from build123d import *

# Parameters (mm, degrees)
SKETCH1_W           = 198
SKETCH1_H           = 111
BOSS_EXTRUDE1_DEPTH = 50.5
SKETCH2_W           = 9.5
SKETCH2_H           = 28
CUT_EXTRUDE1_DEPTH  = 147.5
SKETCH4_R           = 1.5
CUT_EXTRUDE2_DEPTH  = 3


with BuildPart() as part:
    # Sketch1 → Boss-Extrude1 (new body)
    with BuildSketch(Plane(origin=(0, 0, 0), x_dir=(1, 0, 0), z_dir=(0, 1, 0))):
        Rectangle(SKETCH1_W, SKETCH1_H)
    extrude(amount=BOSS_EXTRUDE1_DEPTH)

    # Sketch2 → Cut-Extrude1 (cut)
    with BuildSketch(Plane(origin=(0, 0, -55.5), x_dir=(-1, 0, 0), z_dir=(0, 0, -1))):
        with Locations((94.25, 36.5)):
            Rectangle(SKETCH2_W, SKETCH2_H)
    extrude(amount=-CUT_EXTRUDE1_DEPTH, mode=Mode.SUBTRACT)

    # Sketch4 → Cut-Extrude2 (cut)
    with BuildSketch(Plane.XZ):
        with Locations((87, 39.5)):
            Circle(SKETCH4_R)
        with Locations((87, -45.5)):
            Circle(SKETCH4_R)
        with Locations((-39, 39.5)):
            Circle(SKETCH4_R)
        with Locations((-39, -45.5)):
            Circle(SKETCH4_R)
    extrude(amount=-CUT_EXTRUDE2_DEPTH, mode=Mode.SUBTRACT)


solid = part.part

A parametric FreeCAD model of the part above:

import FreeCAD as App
import Part
import Sketcher
from FreeCAD import Vector

doc = App.newDocument("Part")
params = doc.addObject("Spreadsheet::Sheet", "Params")
for row, (alias, value) in enumerate([
    ("sketch1_width", "198 mm"),
    ("sketch1_height", "111 mm"),
    ("pad1_length", "50.5 mm"),
    ("sketch2_height", "28 mm"),
    ("sketch2_width", "9.5 mm"),
    ("pocket1_length", "147.5 mm"),
    ("sketch3_diameter", "3 mm"),
    ("pocket2_length", "3 mm"),
], start=1):
    params.set(f"A{row}", alias)
    params.set(f"B{row}", "=" + value)
    params.setAlias(f"B{row}", alias)

body = doc.addObject("PartDesign::Body", "Body")

# Sketch on XZ plane
sketch1 = doc.addObject("Sketcher::SketchObject", "Sketch")
body.addObject(sketch1)
sketch1.AttachmentSupport = (doc.XZ_Plane, [""])
sketch1.MapMode = "FlatFace"
sketch1.addGeometry([
    Part.LineSegment(Vector(-99, -56, 0), Vector(-99, 56, 0)),
    Part.LineSegment(Vector(-99, 56, 0), Vector(99, 56, 0)),
    Part.LineSegment(Vector(99, 56, 0), Vector(99, -56, 0)),
    Part.LineSegment(Vector(99, -56, 0), Vector(-99, -56, 0)),
], False)
sketch1.addConstraint([
    Sketcher.Constraint("Coincident", 0, 2, 1, 1),
    Sketcher.Constraint("Coincident", 1, 2, 2, 1),
    Sketcher.Constraint("Coincident", 2, 2, 3, 1),
    Sketcher.Constraint("Coincident", 3, 2, 0, 1),
    Sketcher.Constraint("Vertical", 0),
    Sketcher.Constraint("Horizontal", 1),
    Sketcher.Constraint("Vertical", 2),
    Sketcher.Constraint("Horizontal", 3),
    Sketcher.Constraint("Symmetric", 0, 2, 2, 2, -1, 1),
    Sketcher.Constraint("DistanceX", 1, 1, 1, 2, 198.0),
    Sketcher.Constraint("DistanceY", 0, 1, 0, 2, 111.0),
])
sketch1.setExpression("Constraints[9]", "Params.sketch1_width")
sketch1.setExpression("Constraints[10]", "Params.sketch1_height")
pad1 = doc.addObject("PartDesign::Pad", "Pad")
body.addObject(pad1)
pad1.Profile = sketch1
pad1.setExpression("Length", "Params.pad1_length")
pad1.Reversed = True

# Sketch on XY plane
sketch2 = doc.addObject("Sketcher::SketchObject", "Sketch001")
body.addObject(sketch2)
sketch2.AttachmentSupport = (doc.XY_Plane, [""])
sketch2.MapMode = "FlatFace"
sketch2.AttachmentOffset = App.Placement(Vector(0, 0, -55.5), App.Rotation())
sketch2.addGeometry([
    Part.LineSegment(Vector(-90, 50, 0), Vector(-90, 22, 0)),
    Part.LineSegment(Vector(-90, 22, 0), Vector(-99, 22, 0)),
    Part.LineSegment(Vector(-99, 22, 0), Vector(-99, 50, 0)),
    Part.LineSegment(Vector(-99, 50, 0), Vector(-90, 50, 0)),
], False)
sketch2.addConstraint([
    Sketcher.Constraint("Coincident", 0, 2, 1, 1),
    Sketcher.Constraint("Coincident", 1, 2, 2, 1),
    Sketcher.Constraint("Coincident", 2, 2, 3, 1),
    Sketcher.Constraint("Coincident", 3, 2, 0, 1),
    Sketcher.Constraint("Vertical", 0),
    Sketcher.Constraint("Horizontal", 1),
    Sketcher.Constraint("Vertical", 2),
    Sketcher.Constraint("Horizontal", 3),
    Sketcher.Constraint("DistanceY", 0, 2, 0, 1, 28.0),
    Sketcher.Constraint("DistanceX", 1, 2, 1, 1, 9.5),
    Sketcher.Constraint("DistanceX", 1, 2, -1, 1, 99.0),
    Sketcher.Constraint("DistanceY", -1, 1, 0, 2, 22.5),
])
sketch2.setExpression("Constraints[8]", "Params.sketch2_height")
sketch2.setExpression("Constraints[9]", "Params.sketch2_width")
pocket1 = doc.addObject("PartDesign::Pocket", "Pocket")
body.addObject(pocket1)
pocket1.Profile = sketch2
pocket1.setExpression("Length", "Params.pocket1_length")
pocket1.Reversed = True

# Sketch on XZ plane
sketch3 = doc.addObject("Sketcher::SketchObject", "Sketch002")
body.addObject(sketch3)
sketch3.AttachmentSupport = (doc.XZ_Plane, [""])
sketch3.MapMode = "FlatFace"
sketch3.addGeometry([
    Part.Circle(Vector(87, 39.5, 0), Vector(0, 0, 1), 1.5),
    Part.Circle(Vector(87, -45.5, 0), Vector(0, 0, 1), 1.5),
    Part.Circle(Vector(-39, 39.5, 0), Vector(0, 0, 1), 1.5),
    Part.Circle(Vector(-39, -45.5, 0), Vector(0, 0, 1), 1.5),
], False)
sketch3.addConstraint([
    Sketcher.Constraint("Equal", 0, 1),
    Sketcher.Constraint("Equal", 1, 2),
    Sketcher.Constraint("Equal", 2, 3),
    Sketcher.Constraint("Horizontal", 0, 3, 2, 3),
    Sketcher.Constraint("Horizontal", 1, 3, 3, 3),
    Sketcher.Constraint("Vertical", 0, 3, 1, 3),
    Sketcher.Constraint("Vertical", 2, 3, 3, 3),
    Sketcher.Constraint("Diameter", 0, 3.0),
    Sketcher.Constraint("DistanceX", -1, 1, 0, 3, 87.0),
    Sketcher.Constraint("DistanceX", 2, 3, -1, 1, 39.0),
    Sketcher.Constraint("DistanceY", 1, 3, 0, 3, 85.0),
    Sketcher.Constraint("DistanceY", -1, 1, 0, 3, 39.5),
])
sketch3.setExpression("Constraints[7]", "Params.sketch3_diameter")
pocket2 = doc.addObject("PartDesign::Pocket", "Pocket001")
body.addObject(pocket2)
pocket2.Profile = sketch3
pocket2.setExpression("Length", "Params.pocket2_length")

doc.recompute()
